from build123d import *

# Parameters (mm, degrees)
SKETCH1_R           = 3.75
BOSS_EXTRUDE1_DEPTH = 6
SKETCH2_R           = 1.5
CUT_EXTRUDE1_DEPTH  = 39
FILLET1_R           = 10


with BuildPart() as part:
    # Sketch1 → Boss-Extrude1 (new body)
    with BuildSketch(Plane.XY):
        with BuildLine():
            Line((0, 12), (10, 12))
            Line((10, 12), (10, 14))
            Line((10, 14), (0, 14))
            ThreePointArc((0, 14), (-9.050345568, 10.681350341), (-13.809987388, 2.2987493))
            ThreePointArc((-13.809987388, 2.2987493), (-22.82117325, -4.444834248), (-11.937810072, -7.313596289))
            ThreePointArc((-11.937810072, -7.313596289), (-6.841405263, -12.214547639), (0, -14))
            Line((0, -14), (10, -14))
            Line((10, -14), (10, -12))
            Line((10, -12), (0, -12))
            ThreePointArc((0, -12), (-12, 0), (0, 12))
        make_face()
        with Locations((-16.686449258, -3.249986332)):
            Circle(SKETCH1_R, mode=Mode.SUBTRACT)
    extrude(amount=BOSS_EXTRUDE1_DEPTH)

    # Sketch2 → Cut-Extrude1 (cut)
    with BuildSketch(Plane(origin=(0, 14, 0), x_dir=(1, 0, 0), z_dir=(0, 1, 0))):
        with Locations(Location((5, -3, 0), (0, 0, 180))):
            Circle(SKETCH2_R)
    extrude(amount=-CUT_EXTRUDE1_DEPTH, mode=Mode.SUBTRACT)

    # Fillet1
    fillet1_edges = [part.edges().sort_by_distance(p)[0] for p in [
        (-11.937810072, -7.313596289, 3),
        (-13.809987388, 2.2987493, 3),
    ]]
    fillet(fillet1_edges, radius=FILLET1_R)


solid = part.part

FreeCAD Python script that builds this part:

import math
import FreeCAD as App
import Part
import Sketcher


def edges_at(feature, points):
    """Names of the edges that pass closest to the given points."""
    edges = feature.Shape.Edges
    near = lambda p: min(range(len(edges)), key=lambda i: edges[i].distToShape(Part.Vertex(*p))[0])
    return sorted({f"Edge{near(p) + 1}" for p in points})

doc = App.newDocument("Part")
params = doc.addObject("Spreadsheet::Sheet", "Params")
for row, (alias, value) in enumerate([
    ("sketch1_radius", "14 mm"),
    ("sketch1_radius2", "12 mm"),
    ("sketch1_diameter", "7.5 mm"),
    ("sketch1_width", "10 mm"),
    ("sketch1_radius3", "6.25 mm"),
    ("pad1_length", "6 mm"),
    ("sketch2_diameter", "3 mm"),
    ("pocket1_length", "39 mm"),
    ("fillet_radius", "10 mm"),
], start=1):
    params.set(f"A{row}", alias)
    params.set(f"B{row}", "=" + value)
    params.setAlias(f"B{row}", alias)

body = doc.addObject("PartDesign::Body", "Body")

sketch1 = doc.addObject("Sketcher::SketchObject", "Sketch")
body.addObject(sketch1)
sketch1.AttachmentSupport = (doc.XY_Plane, [""])
sketch1.MapMode = "FlatFace"
sketch1.addGeometry([
    Part.LineSegment(App.Vector(0, 12, 0), App.Vector(10, 12, 0)),
    Part.LineSegment(App.Vector(10, 12, 0), App.Vector(10, 14, 0)),
    Part.LineSegment(App.Vector(10, 14, 0), App.Vector(0, 14, 0)),
    Part.ArcOfCircle(Part.Circle(App.Vector(0, 0, 0), App.Vector(0, 0, 1), 14), math.radians(90), math.radians(171)),
    Part.ArcOfCircle(Part.Circle(App.Vector(-16.7, -3.2, 0), App.Vector(0, 0, 1), 6.2), math.radians(63), math.radians(319)),
    Part.ArcOfCircle(Part.Circle(App.Vector(0, 0, 0), App.Vector(0, 0, 1), 14), math.radians(-149), math.radians(-90)),
    Part.LineSegment(App.Vector(0, -14, 0), App.Vector(10, -14, 0)),
    Part.LineSegment(App.Vector(10, -14, 0), App.Vector(10, -12, 0)),
    Part.LineSegment(App.Vector(10, -12, 0), App.Vector(0, -12, 0)),
    Part.ArcOfCircle(Part.Circle(App.Vector(0, 0, 0), App.Vector(0, 0, 1), 12), math.radians(90), math.radians(270)),
    Part.Circle(App.Vector(-16.7, -3.2, 0), App.Vector(0, 0, 1), 3.8),
], False)
sketch1.addConstraint([
    Sketcher.Constraint("Coincident", 0, 2, 1, 1),
    Sketcher.Constraint("Coincident", 1, 2, 2, 1),
    Sketcher.Constraint("Tangent", 2, 2, 3, 1),
    Sketcher.Constraint("Coincident", 3, 2, 4, 1),
    Sketcher.Constraint("Coincident", 4, 2, 5, 1),
    Sketcher.Constraint("Tangent", 5, 2, 6, 1),
    Sketcher.Constraint("Coincident", 6, 2, 7, 1),
    Sketcher.Constraint("Coincident", 7, 2, 8, 1),
    Sketcher.Constraint("Tangent", 8, 2, 9, 2),
    Sketcher.Constraint("Tangent", 9, 1, 0, 1),
    Sketcher.Constraint("Horizontal", 0),
    Sketcher.Constraint("Vertical", 1),
    Sketcher.Constraint("Horizontal", 2),
    Sketcher.Constraint("Horizontal", 6),
    Sketcher.Constraint("Vertical", 7),
    Sketcher.Constraint("Horizontal", 8),
    Sketcher.Constraint("Coincident", 3, 3, -1, 1),
    Sketcher.Constraint("Coincident", 5, 3, -1, 1),
    Sketcher.Constraint("Coincident", 9, 3, -1, 1),
    Sketcher.Constraint("Coincident", 10, 3, 4, 3),
    Sketcher.Constraint("Equal", 3, 5),
    Sketcher.Constraint("Vertical", 1, 2, 6, 2),
    Sketcher.Constraint("Radius", 3, 14.0),
    Sketcher.Constraint("Radius", 9, 12.0),
    Sketcher.Constraint("Diameter", 10, 7.5),
    Sketcher.Constraint("DistanceX", 0, 1, 0, 2, 10.0),
    Sketcher.Constraint("Radius", 4, 6.25),
    Sketcher.Constraint("DistanceX", 4, 3, -1, 1, 16.686449),
    Sketcher.Constraint("DistanceY", -1, 1, 3, 2, 2.298749),
])
sketch1.setExpression("Constraints[22]", "Params.sketch1_radius")
sketch1.setExpression("Constraints[23]", "Params.sketch1_radius2")
sketch1.setExpression("Constraints[24]", "Params.sketch1_diameter")
sketch1.setExpression("Constraints[25]", "Params.sketch1_width")
sketch1.setExpression("Constraints[26]", "Params.sketch1_radius3")
pad1 = doc.addObject("PartDesign::Pad", "Pad")
body.addObject(pad1)
pad1.Profile = sketch1
pad1.setExpression("Length", "Params.pad1_length")

sketch2 = doc.addObject("Sketcher::SketchObject", "Sketch001")
body.addObject(sketch2)
sketch2.AttachmentSupport = (doc.XZ_Plane, [""])
sketch2.MapMode = "FlatFace"
sketch2.AttachmentOffset = App.Placement(App.Vector(0, 0, -14), App.Rotation())
sketch2.addGeometry(Part.Circle(App.Vector(5, 3, 0), App.Vector(0, 0, 1), 1.5), False)
sketch2.addConstraint([
    Sketcher.Constraint("Diameter", 0, 3.0),
    Sketcher.Constraint("DistanceX", -1, 1, 0, 3, 5.0),
    Sketcher.Constraint("DistanceY", -1, 1, 0, 3, 3.0),
])
sketch2.setExpression("Constraints[0]", "Params.sketch2_diameter")
pocket1 = doc.addObject("PartDesign::Pocket", "Pocket")
body.addObject(pocket1)
pocket1.Profile = sketch2
pocket1.setExpression("Length", "Params.pocket1_length")
pocket1.Reversed = True
doc.recompute()

fillet = doc.addObject("PartDesign::Fillet", "Fillet")
body.addObject(fillet)
fillet.Base = (pocket1, edges_at(pocket1, [(-11.938, -7.314, 3), (-13.81, 2.299, 3)]))
fillet.setExpression("Radius", "Params.fillet_radius")

doc.recompute()
